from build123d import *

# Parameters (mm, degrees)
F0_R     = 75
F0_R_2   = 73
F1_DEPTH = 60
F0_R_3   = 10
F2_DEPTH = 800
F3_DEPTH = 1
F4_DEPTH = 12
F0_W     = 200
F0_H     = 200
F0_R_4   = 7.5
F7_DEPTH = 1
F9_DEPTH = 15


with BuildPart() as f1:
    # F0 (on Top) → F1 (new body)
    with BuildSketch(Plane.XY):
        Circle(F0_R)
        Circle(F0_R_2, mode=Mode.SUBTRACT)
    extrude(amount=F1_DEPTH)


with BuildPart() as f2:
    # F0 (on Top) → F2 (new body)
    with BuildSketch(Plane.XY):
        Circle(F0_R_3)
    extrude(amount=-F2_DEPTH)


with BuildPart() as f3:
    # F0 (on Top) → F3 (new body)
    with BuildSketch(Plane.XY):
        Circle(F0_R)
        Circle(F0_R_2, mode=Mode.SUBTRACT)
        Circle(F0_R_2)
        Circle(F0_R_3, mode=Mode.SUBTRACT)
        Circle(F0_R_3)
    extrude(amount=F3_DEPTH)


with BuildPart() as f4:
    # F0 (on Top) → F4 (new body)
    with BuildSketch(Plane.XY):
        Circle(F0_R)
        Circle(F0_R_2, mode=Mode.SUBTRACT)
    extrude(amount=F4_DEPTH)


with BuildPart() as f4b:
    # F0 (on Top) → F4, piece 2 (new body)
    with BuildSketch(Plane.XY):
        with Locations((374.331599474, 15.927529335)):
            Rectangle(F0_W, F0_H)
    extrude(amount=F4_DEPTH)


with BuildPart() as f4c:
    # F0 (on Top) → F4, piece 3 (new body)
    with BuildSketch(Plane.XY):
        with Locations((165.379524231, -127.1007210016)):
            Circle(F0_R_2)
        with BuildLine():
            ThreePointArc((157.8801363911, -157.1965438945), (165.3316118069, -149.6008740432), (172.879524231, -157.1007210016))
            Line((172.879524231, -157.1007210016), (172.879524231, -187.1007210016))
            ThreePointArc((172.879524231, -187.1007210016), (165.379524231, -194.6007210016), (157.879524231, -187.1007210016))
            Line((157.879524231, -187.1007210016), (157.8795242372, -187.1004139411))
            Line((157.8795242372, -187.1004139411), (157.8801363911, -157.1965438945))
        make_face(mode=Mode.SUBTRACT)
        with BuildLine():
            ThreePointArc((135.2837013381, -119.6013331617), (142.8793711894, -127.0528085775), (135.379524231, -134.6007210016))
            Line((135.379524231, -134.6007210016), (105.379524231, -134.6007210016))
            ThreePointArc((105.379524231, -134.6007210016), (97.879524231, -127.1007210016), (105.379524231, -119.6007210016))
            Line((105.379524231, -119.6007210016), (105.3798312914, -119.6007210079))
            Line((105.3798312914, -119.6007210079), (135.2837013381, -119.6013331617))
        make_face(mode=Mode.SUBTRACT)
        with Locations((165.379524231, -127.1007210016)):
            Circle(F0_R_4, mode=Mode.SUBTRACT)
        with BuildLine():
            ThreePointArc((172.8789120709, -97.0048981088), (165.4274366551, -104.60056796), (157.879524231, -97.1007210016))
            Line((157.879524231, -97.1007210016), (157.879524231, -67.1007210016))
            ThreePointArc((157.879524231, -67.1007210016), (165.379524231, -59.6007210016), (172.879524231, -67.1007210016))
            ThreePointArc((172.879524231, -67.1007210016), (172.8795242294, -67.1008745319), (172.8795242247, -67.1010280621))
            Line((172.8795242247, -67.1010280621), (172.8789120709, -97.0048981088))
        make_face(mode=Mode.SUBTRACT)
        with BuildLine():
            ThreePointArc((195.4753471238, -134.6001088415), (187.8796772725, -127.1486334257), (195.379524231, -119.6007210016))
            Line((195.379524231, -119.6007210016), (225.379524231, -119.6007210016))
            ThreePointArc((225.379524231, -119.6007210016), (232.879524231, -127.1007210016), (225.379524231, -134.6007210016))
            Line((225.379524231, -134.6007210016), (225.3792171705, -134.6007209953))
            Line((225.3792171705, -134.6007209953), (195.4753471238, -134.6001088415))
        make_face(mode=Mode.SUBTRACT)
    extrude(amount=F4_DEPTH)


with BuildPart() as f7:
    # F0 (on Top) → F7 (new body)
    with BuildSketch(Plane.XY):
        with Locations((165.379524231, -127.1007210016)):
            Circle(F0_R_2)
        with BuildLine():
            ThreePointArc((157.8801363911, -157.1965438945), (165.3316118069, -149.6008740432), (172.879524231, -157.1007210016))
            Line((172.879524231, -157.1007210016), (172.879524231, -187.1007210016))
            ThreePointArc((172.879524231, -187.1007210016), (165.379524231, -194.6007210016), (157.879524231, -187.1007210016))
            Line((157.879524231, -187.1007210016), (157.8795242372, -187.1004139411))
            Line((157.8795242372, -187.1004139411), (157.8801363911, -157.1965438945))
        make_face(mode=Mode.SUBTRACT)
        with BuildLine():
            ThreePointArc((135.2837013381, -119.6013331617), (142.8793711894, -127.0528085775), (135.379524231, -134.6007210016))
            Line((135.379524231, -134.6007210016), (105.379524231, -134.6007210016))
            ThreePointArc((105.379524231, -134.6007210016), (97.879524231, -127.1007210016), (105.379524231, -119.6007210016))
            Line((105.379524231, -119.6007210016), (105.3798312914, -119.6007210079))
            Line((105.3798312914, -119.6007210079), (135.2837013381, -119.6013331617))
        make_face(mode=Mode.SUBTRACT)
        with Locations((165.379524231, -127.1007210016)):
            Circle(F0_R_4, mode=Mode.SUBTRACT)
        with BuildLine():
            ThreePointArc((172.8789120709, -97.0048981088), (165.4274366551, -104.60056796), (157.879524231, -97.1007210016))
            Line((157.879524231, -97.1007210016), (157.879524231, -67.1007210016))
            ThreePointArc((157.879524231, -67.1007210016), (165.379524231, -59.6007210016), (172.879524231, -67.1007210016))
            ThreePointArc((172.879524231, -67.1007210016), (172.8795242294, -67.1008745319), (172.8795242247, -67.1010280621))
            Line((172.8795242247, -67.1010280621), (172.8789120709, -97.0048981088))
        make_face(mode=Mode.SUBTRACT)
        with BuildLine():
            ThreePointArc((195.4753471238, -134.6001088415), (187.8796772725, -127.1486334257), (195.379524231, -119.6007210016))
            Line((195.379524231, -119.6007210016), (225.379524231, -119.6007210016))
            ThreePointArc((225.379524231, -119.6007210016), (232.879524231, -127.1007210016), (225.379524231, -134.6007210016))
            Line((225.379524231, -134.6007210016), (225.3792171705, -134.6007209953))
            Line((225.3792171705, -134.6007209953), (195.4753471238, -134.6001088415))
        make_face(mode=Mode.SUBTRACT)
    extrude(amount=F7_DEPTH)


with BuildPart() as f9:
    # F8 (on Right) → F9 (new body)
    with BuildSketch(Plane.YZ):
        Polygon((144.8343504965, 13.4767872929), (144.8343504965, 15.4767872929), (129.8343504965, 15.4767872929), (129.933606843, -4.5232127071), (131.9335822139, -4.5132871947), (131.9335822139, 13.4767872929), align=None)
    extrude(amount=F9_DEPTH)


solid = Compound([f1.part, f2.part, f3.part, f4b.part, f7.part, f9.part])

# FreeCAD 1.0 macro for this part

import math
import FreeCAD as App
import Part
import Sketcher
from FreeCAD import Vector

doc = App.newDocument("Part")
body = doc.addObject("PartDesign::Body", "Body")

# Sketch on XY plane
sketch1 = doc.addObject("Sketcher::SketchObject", "Sketch")
body.addObject(sketch1)
sketch1.AttachmentSupport = (doc.XY_Plane, [""])
sketch1.MapMode = "FlatFace"
sketch1.addGeometry([
    Part.Circle(Vector(0, 0, 0), Vector(0, 0, 1), 75),
    Part.Circle(Vector(0, 0, 0), Vector(0, 0, 1), 73),
], False)
sketch1.addConstraint([
    Sketcher.Constraint("Coincident", 0, 3, -1, 1),
    Sketcher.Constraint("Coincident", 1, 3, -1, 1),
    Sketcher.Constraint("Diameter", 0, 150.0),
    Sketcher.Constraint("Diameter", 1, 146.0),
])
pad1 = doc.addObject("PartDesign::Pad", "Pad")
body.addObject(pad1)
pad1.Profile = sketch1
pad1.Length = 60
body2 = doc.addObject("PartDesign::Body", "Body001")

# Sketch on XY plane
sketch2 = doc.addObject("Sketcher::SketchObject", "Sketch001")
body2.addObject(sketch2)
sketch2.AttachmentSupport = (doc.getObject("XY_Plane001"), [""])
sketch2.MapMode = "FlatFace"
sketch2.addGeometry(Part.Circle(Vector(0, 0, 0), Vector(0, 0, 1), 10), False)
sketch2.addConstraint([
    Sketcher.Constraint("Coincident", 0, 3, -1, 1),
    Sketcher.Constraint("Diameter", 0, 20.0),
])
pad2 = doc.addObject("PartDesign::Pad", "Pad001")
body2.addObject(pad2)
pad2.Profile = sketch2
pad2.Length = 800
pad2.Reversed = True
body3 = doc.addObject("PartDesign::Body", "Body002")

# Sketch on XY plane
sketch3 = doc.addObject("Sketcher::SketchObject", "Sketch002")
body3.addObject(sketch3)
sketch3.AttachmentSupport = (doc.getObject("XY_Plane002"), [""])
sketch3.MapMode = "FlatFace"
sketch3.addGeometry(Part.Circle(Vector(0, 0, 0), Vector(0, 0, 1), 75), False)
sketch3.addConstraint([
    Sketcher.Constraint("Coincident", 0, 3, -1, 1),
    Sketcher.Constraint("Diameter", 0, 150.0),
])
pad3 = doc.addObject("PartDesign::Pad", "Pad002")
body3.addObject(pad3)
pad3.Profile = sketch3
pad3.Length = 1
body4 = doc.addObject("PartDesign::Body", "Body003")

# Sketch on XY plane
sketch4 = doc.addObject("Sketcher::SketchObject", "Sketch003")
body4.addObject(sketch4)
sketch4.AttachmentSupport = (doc.getObject("XY_Plane003"), [""])
sketch4.MapMode = "FlatFace"
sketch4.addGeometry([
    Part.Circle(Vector(0, 0, 0), Vector(0, 0, 1), 75),
    Part.Circle(Vector(0, 0, 0), Vector(0, 0, 1), 73),
], False)
sketch4.addConstraint([
    Sketcher.Constraint("Coincident", 0, 3, -1, 1),
    Sketcher.Constraint("Coincident", 1, 3, -1, 1),
    Sketcher.Constraint("Diameter", 0, 150.0),
    Sketcher.Constraint("Diameter", 1, 146.0),
])
pad4 = doc.addObject("PartDesign::Pad", "Pad003")
body4.addObject(pad4)
pad4.Profile = sketch4
pad4.Length = 12
body5 = doc.addObject("PartDesign::Body", "Body004")

# Sketch on XY plane
sketch5 = doc.addObject("Sketcher::SketchObject", "Sketch004")
body5.addObject(sketch5)
sketch5.AttachmentSupport = (doc.getObject("XY_Plane004"), [""])
sketch5.MapMode = "FlatFace"
sketch5.addGeometry([
    Part.LineSegment(Vector(274.331599, 115.927529, 0), Vector(274.331599, -84.072471, 0)),
    Part.LineSegment(Vector(274.331599, -84.072471, 0), Vector(474.331599, -84.072471, 0)),
    Part.LineSegment(Vector(474.331599, -84.072471, 0), Vector(474.331599, 115.927529, 0)),
    Part.LineSegment(Vector(474.331599, 115.927529, 0), Vector(274.331599, 115.927529, 0)),
], False)
sketch5.addConstraint([
    Sketcher.Constraint("Coincident", 0, 2, 1, 1),
    Sketcher.Constraint("Coincident", 1, 2, 2, 1),
    Sketcher.Constraint("Coincident", 2, 2, 3, 1),
    Sketcher.Constraint("Coincident", 3, 2, 0, 1),
    Sketcher.Constraint("Vertical", 0),
    Sketcher.Constraint("Horizontal", 1),
    Sketcher.Constraint("Vertical", 2),
    Sketcher.Constraint("Horizontal", 3),
    Sketcher.Constraint("Equal", 3, 0),
    Sketcher.Constraint("DistanceX", 1, 1, 1, 2, 200.0),
    Sketcher.Constraint("DistanceX", -1, 1, 0, 2, 274.331599),
    Sketcher.Constraint("DistanceY", 0, 2, -1, 1, 84.072471),
])
pad5 = doc.addObject("PartDesign::Pad", "Pad004")
body5.addObject(pad5)
pad5.Profile = sketch5
pad5.Length = 12
body6 = doc.addObject("PartDesign::Body", "Body005")

# Sketch on XY plane
sketch6 = doc.addObject("Sketcher::SketchObject", "Sketch005")
body6.addObject(sketch6)
sketch6.AttachmentSupport = (doc.getObject("XY_Plane005"), [""])
sketch6.MapMode = "FlatFace"
sketch6.addGeometry([
    Part.Circle(Vector(165.379524, -127.100721, 0), Vector(0, 0, 1), 73),  # 0
    Part.LineSegment(Vector(157.879524, -187.100414, 0), Vector(157.880136, -157.196544, 0)),  # 1
    Part.ArcOfCircle(Part.Circle(Vector(165.379524, -157.100721, 0), Vector(0, 0, 1), 7.5), math.radians(0), math.radians(180.732053)),  # 2
    Part.LineSegment(Vector(172.879524, -157.100721, 0), Vector(172.879524, -187.100721, 0)),  # 3
    Part.ArcOfCircle(Part.Circle(Vector(165.379524, -187.100721, 0), Vector(0, 0, 1), 7.5), math.radians(180), math.radians(360)),  # 4
    Part.LineSegment(Vector(157.879524, -187.100721, 0), Vector(157.879524, -187.100414, 0)),  # 5
    Part.LineSegment(Vector(225.379217, -134.600721, 0), Vector(195.475347, -134.600109, 0)),  # 6
    Part.ArcOfCircle(Part.Circle(Vector(195.379524, -127.100721, 0), Vector(0, 0, 1), 7.5), math.radians(90), math.radians(270.732053)),  # 7
    Part.LineSegment(Vector(195.379524, -119.600721, 0), Vector(225.379524, -119.600721, 0)),  # 8
    Part.ArcOfCircle(Part.Circle(Vector(225.379524, -127.100721, 0), Vector(0, 0, 1), 7.5), math.radians(-90), math.radians(90)),  # 9
    Part.LineSegment(Vector(225.379524, -134.600721, 0), Vector(225.379217, -134.600721, 0)),  # 10
    Part.LineSegment(Vector(105.379831, -119.600721, 0), Vector(135.283701, -119.601333, 0)),  # 11
    Part.ArcOfCircle(Part.Circle(Vector(135.379524, -127.100721, 0), Vector(0, 0, 1), 7.5), math.radians(-90), math.radians(90.732053)),  # 12
    Part.LineSegment(Vector(135.379524, -134.600721, 0), Vector(105.379524, -134.600721, 0)),  # 13
    Part.ArcOfCircle(Part.Circle(Vector(105.379524, -127.100721, 0), Vector(0, 0, 1), 7.5), math.radians(90), math.radians(270)),  # 14
    Part.LineSegment(Vector(105.379524, -119.600721, 0), Vector(105.379831, -119.600721, 0)),  # 15
    Part.Circle(Vector(165.379524, -127.100721, 0), Vector(0, 0, 1), 7.5),  # 16
    Part.LineSegment(Vector(172.879524, -67.101028, 0), Vector(172.878912, -97.004898, 0)),  # 17
    Part.ArcOfCircle(Part.Circle(Vector(165.379524, -97.100721, 0), Vector(0, 0, 1), 7.5), math.radians(180), math.radians(360.732053)),  # 18
    Part.LineSegment(Vector(157.879524, -97.100721, 0), Vector(157.879524, -67.100721, 0)),  # 19
    Part.ArcOfCircle(Part.Circle(Vector(165.379524, -67.100721, 0), Vector(0, 0, 1), 7.5), math.radians(0), math.radians(180)),  # 20
    Part.ArcOfCircle(Part.Circle(Vector(165.275835, -67.100719, 0), Vector(0, 0, 1), 7.603689), math.radians(-0.002332), math.radians(-0.000019)),  # 21
], False)
sketch6.addConstraint([
    Sketcher.Constraint("Coincident", 1, 2, 2, 2),
    Sketcher.Constraint("Tangent", 2, 1, 3, 1),
    Sketcher.Constraint("Tangent", 3, 2, 4, 2),
    Sketcher.Constraint("Coincident", 4, 1, 5, 1),
    Sketcher.Constraint("Coincident", 5, 2, 1, 1),
    Sketcher.Constraint("Coincident", 6, 2, 7, 2),
    Sketcher.Constraint("Tangent", 7, 1, 8, 1),
    Sketcher.Constraint("Tangent", 8, 2, 9, 2),
    Sketcher.Constraint("Coincident", 9, 1, 10, 1),
    Sketcher.Constraint("Coincident", 10, 2, 6, 1),
    Sketcher.Constraint("Coincident", 11, 2, 12, 2),
    Sketcher.Constraint("Tangent", 12, 1, 13, 1),
    Sketcher.Constraint("Tangent", 13, 2, 14, 2),
    Sketcher.Constraint("Coincident", 14, 1, 15, 1),
    Sketcher.Constraint("Coincident", 15, 2, 11, 1),
    Sketcher.Constraint("Coincident", 17, 2, 18, 2),
    Sketcher.Constraint("Tangent", 18, 1, 19, 1),
    Sketcher.Constraint("Tangent", 19, 2, 20, 2),
    Sketcher.Constraint("Tangent", 20, 1, 21, 2),
    Sketcher.Constraint("Coincident", 21, 1, 17, 1),
    Sketcher.Constraint("Vertical", 3),
    Sketcher.Constraint("Vertical", 5),
    Sketcher.Constraint("Horizontal", 8),
    Sketcher.Constraint("Horizontal", 10),
    Sketcher.Constraint("Horizontal", 13),
    Sketcher.Constraint("Horizontal", 15),
    Sketcher.Constraint("Vertical", 19),
    Sketcher.Constraint("Coincident", 16, 3, 0, 3),
    Sketcher.Constraint("Equal", 2, 4),
    Sketcher.Constraint("Equal", 4, 7),
    Sketcher.Constraint("Equal", 7, 9),
    Sketcher.Constraint("Equal", 9, 12),
    Sketcher.Constraint("Equal", 12, 14),
    Sketcher.Constraint("Equal", 14, 16),
    Sketcher.Constraint("Equal", 16, 18),
    Sketcher.Constraint("Equal", 18, 20),
    Sketcher.Constraint("Perpendicular", 1, 6),
    Sketcher.Constraint("Parallel", 6, 11),
    Sketcher.Constraint("Perpendicular", 11, 17),
    Sketcher.Constraint("Horizontal", 0, 3, 7, 3),
    Sketcher.Constraint("Horizontal", 9, 3, 12, 3),
    Sketcher.Constraint("Horizontal", 3, 2, 4, 1),
    Sketcher.Constraint("Horizontal", 19, 2, 20, 1),
    Sketcher.Constraint("Vertical", 0, 3, 2, 3),
    Sketcher.Constraint("Vertical", 16, 3, 18, 3),
    Sketcher.Constraint("Vertical", 8, 2, 9, 1),
    Sketcher.Constraint("Vertical", 13, 2, 14, 1),
    Sketcher.Constraint("Equal", 8, 13),
    Sketcher.Constraint("Equal", 10, 15),
    Sketcher.Constraint("Equal", 13, 3),
    Sketcher.Constraint("Equal", 15, 5),
    Sketcher.Constraint("Equal", 3, 19),
    Sketcher.Constraint("Equal", 11, 17),
    Sketcher.Constraint("Diameter", 0, 146.0),
    Sketcher.Constraint("Diameter", 16, 15.0),
    Sketcher.Constraint("DistanceX", 8, 1, 8, 2, 30.0),
    Sketcher.Constraint("DistanceY", 2, 3, 0, 3, 30.0),
    Sketcher.Constraint("DistanceX", 0, 3, 7, 3, 30.0),
    Sketcher.Constraint("DistanceX", 12, 3, 0, 3, 30.0),
    Sketcher.Constraint("DistanceY", 0, 3, 18, 3, 30.0),
    Sketcher.Constraint("Radius", 21, 7.603689),
    Sketcher.Constraint("DistanceX", -1, 1, 11, 2, 135.283701),
    Sketcher.Constraint("DistanceY", 17, 2, -1, 1, 97.004898),
    Sketcher.Constraint("Distance", 1, 29.90387),
    Sketcher.Constraint("DistanceX", 10, 2, 10, 1, 0.000307),
])
pad6 = doc.addObject("PartDesign::Pad", "Pad005")
body6.addObject(pad6)
pad6.Profile = sketch6
pad6.Length = 12
body7 = doc.addObject("PartDesign::Body", "Body006")

# Sketch on XY plane
sketch7 = doc.addObject("Sketcher::SketchObject", "Sketch006")
body7.addObject(sketch7)
sketch7.AttachmentSupport = (doc.getObject("XY_Plane006"), [""])
sketch7.MapMode = "FlatFace"
sketch7.addGeometry([
    Part.Circle(Vector(165.379524, -127.100721, 0), Vector(0, 0, 1), 73),  # 0
    Part.LineSegment(Vector(157.879524, -187.100414, 0), Vector(157.880136, -157.196544, 0)),  # 1
    Part.ArcOfCircle(Part.Circle(Vector(165.379524, -157.100721, 0), Vector(0, 0, 1), 7.5), math.radians(0), math.radians(180.732053)),  # 2
    Part.LineSegment(Vector(172.879524, -157.100721, 0), Vector(172.879524, -187.100721, 0)),  # 3
    Part.ArcOfCircle(Part.Circle(Vector(165.379524, -187.100721, 0), Vector(0, 0, 1), 7.5), math.radians(180), math.radians(360)),  # 4
    Part.LineSegment(Vector(157.879524, -187.100721, 0), Vector(157.879524, -187.100414, 0)),  # 5
    Part.LineSegment(Vector(225.379217, -134.600721, 0), Vector(195.475347, -134.600109, 0)),  # 6
    Part.ArcOfCircle(Part.Circle(Vector(195.379524, -127.100721, 0), Vector(0, 0, 1), 7.5), math.radians(90), math.radians(270.732053)),  # 7
    Part.LineSegment(Vector(195.379524, -119.600721, 0), Vector(225.379524, -119.600721, 0)),  # 8
    Part.ArcOfCircle(Part.Circle(Vector(225.379524, -127.100721, 0), Vector(0, 0, 1), 7.5), math.radians(-90), math.radians(90)),  # 9
    Part.LineSegment(Vector(225.379524, -134.600721, 0), Vector(225.379217, -134.600721, 0)),  # 10
    Part.LineSegment(Vector(105.379831, -119.600721, 0), Vector(135.283701, -119.601333, 0)),  # 11
    Part.ArcOfCircle(Part.Circle(Vector(135.379524, -127.100721, 0), Vector(0, 0, 1), 7.5), math.radians(-90), math.radians(90.732053)),  # 12
    Part.LineSegment(Vector(135.379524, -134.600721, 0), Vector(105.379524, -134.600721, 0)),  # 13
    Part.ArcOfCircle(Part.Circle(Vector(105.379524, -127.100721, 0), Vector(0, 0, 1), 7.5), math.radians(90), math.radians(270)),  # 14
    Part.LineSegment(Vector(105.379524, -119.600721, 0), Vector(105.379831, -119.600721, 0)),  # 15
    Part.Circle(Vector(165.379524, -127.100721, 0), Vector(0, 0, 1), 7.5),  # 16
    Part.LineSegment(Vector(172.879524, -67.101028, 0), Vector(172.878912, -97.004898, 0)),  # 17
    Part.ArcOfCircle(Part.Circle(Vector(165.379524, -97.100721, 0), Vector(0, 0, 1), 7.5), math.radians(180), math.radians(360.732053)),  # 18
    Part.LineSegment(Vector(157.879524, -97.100721, 0), Vector(157.879524, -67.100721, 0)),  # 19
    Part.ArcOfCircle(Part.Circle(Vector(165.379524, -67.100721, 0), Vector(0, 0, 1), 7.5), math.radians(0), math.radians(180)),  # 20
    Part.ArcOfCircle(Part.Circle(Vector(165.275835, -67.100719, 0), Vector(0, 0, 1), 7.603689), math.radians(-0.002332), math.radians(-0.000019)),  # 21
], False)
sketch7.addConstraint([
    Sketcher.Constraint("Coincident", 1, 2, 2, 2),
    Sketcher.Constraint("Tangent", 2, 1, 3, 1),
    Sketcher.Constraint("Tangent", 3, 2, 4, 2),
    Sketcher.Constraint("Coincident", 4, 1, 5, 1),
    Sketcher.Constraint("Coincident", 5, 2, 1, 1),
    Sketcher.Constraint("Coincident", 6, 2, 7, 2),
    Sketcher.Constraint("Tangent", 7, 1, 8, 1),
    Sketcher.Constraint("Tangent", 8, 2, 9, 2),
    Sketcher.Constraint("Coincident", 9, 1, 10, 1),
    Sketcher.Constraint("Coincident", 10, 2, 6, 1),
    Sketcher.Constraint("Coincident", 11, 2, 12, 2),
    Sketcher.Constraint("Tangent", 12, 1, 13, 1),
    Sketcher.Constraint("Tangent", 13, 2, 14, 2),
    Sketcher.Constraint("Coincident", 14, 1, 15, 1),
    Sketcher.Constraint("Coincident", 15, 2, 11, 1),
    Sketcher.Constraint("Coincident", 17, 2, 18, 2),
    Sketcher.Constraint("Tangent", 18, 1, 19, 1),
    Sketcher.Constraint("Tangent", 19, 2, 20, 2),
    Sketcher.Constraint("Tangent", 20, 1, 21, 2),
    Sketcher.Constraint("Coincident", 21, 1, 17, 1),
    Sketcher.Constraint("Vertical", 3),
    Sketcher.Constraint("Vertical", 5),
    Sketcher.Constraint("Horizontal", 8),
    Sketcher.Constraint("Horizontal", 10),
    Sketcher.Constraint("Horizontal", 13),
    Sketcher.Constraint("Horizontal", 15),
    Sketcher.Constraint("Vertical", 19),
    Sketcher.Constraint("Coincident", 16, 3, 0, 3),
    Sketcher.Constraint("Equal", 2, 4),
    Sketcher.Constraint("Equal", 4, 7),
    Sketcher.Constraint("Equal", 7, 9),
    Sketcher.Constraint("Equal", 9, 12),
    Sketcher.Constraint("Equal", 12, 14),
    Sketcher.Constraint("Equal", 14, 16),
    Sketcher.Constraint("Equal", 16, 18),
    Sketcher.Constraint("Equal", 18, 20),
    Sketcher.Constraint("Perpendicular", 1, 6),
    Sketcher.Constraint("Parallel", 6, 11),
    Sketcher.Constraint("Perpendicular", 11, 17),
    Sketcher.Constraint("Horizontal", 0, 3, 7, 3),
    Sketcher.Constraint("Horizontal", 9, 3, 12, 3),
    Sketcher.Constraint("Horizontal", 3, 2, 4, 1),
    Sketcher.Constraint("Horizontal", 19, 2, 20, 1),
    Sketcher.Constraint("Vertical", 0, 3, 2, 3),
    Sketcher.Constraint("Vertical", 16, 3, 18, 3),
    Sketcher.Constraint("Vertical", 8, 2, 9, 1),
    Sketcher.Constraint("Vertical", 13, 2, 14, 1),
    Sketcher.Constraint("Equal", 8, 13),
    Sketcher.Constraint("Equal", 10, 15),
    Sketcher.Constraint("Equal", 13, 3),
    Sketcher.Constraint("Equal", 15, 5),
    Sketcher.Constraint("Equal", 3, 19),
    Sketcher.Constraint("Equal", 11, 17),
    Sketcher.Constraint("Diameter", 0, 146.0),
    Sketcher.Constraint("Diameter", 16, 15.0),
    Sketcher.Constraint("DistanceX", 8, 1, 8, 2, 30.0),
    Sketcher.Constraint("DistanceY", 2, 3, 0, 3, 30.0),
    Sketcher.Constraint("DistanceX", 0, 3, 7, 3, 30.0),
    Sketcher.Constraint("DistanceX", 12, 3, 0, 3, 30.0),
    Sketcher.Constraint("DistanceY", 0, 3, 18, 3, 30.0),
    Sketcher.Constraint("Radius", 21, 7.603689),
    Sketcher.Constraint("DistanceX", -1, 1, 11, 2, 135.283701),
    Sketcher.Constraint("DistanceY", 17, 2, -1, 1, 97.004898),
    Sketcher.Constraint("Distance", 1, 29.90387),
    Sketcher.Constraint("DistanceX", 10, 2, 10, 1, 0.000307),
])
pad7 = doc.addObject("PartDesign::Pad", "Pad006")
body7.addObject(pad7)
pad7.Profile = sketch7
pad7.Length = 1
body8 = doc.addObject("PartDesign::Body", "Body007")

# Sketch on YZ plane
sketch8 = doc.addObject("Sketcher::SketchObject", "Sketch007")
body8.addObject(sketch8)
sketch8.AttachmentSupport = (doc.getObject("YZ_Plane007"), [""])
sketch8.MapMode = "FlatFace"
sketch8.addGeometry([
    Part.LineSegment(Vector(144.83435, 13.476787, 0), Vector(144.83435, 15.476787, 0)),  # 0
    Part.LineSegment(Vector(144.83435, 15.476787, 0), Vector(129.83435, 15.476787, 0)),  # 1
    Part.LineSegment(Vector(129.83435, 15.476787, 0), Vector(129.933607, -4.523213, 0)),  # 2
    Part.LineSegment(Vector(129.933607, -4.523213, 0), Vector(131.933582, -4.513287, 0)),  # 3
    Part.LineSegment(Vector(131.933582, -4.513287, 0), Vector(131.933582, 13.476787, 0)),  # 4
    Part.LineSegment(Vector(131.933582, 13.476787, 0), Vector(144.83435, 13.476787, 0)),  # 5
], False)
sketch8.addConstraint([
    Sketcher.Constraint("Coincident", 0, 2, 1, 1),
    Sketcher.Constraint("Coincident", 1, 2, 2, 1),
    Sketcher.Constraint("Coincident", 2, 2, 3, 1),
    Sketcher.Constraint("Coincident", 3, 2, 4, 1),
    Sketcher.Constraint("Coincident", 4, 2, 5, 1),
    Sketcher.Constraint("Coincident", 5, 2, 0, 1),
    Sketcher.Constraint("Vertical", 0),
    Sketcher.Constraint("Horizontal", 1),
    Sketcher.Constraint("Vertical", 4),
    Sketcher.Constraint("Horizontal", 5),
    Sketcher.Constraint("Perpendicular", 2, 3),
    Sketcher.Constraint("DistanceX", 1, 2, 1, 1, 15.0),
    Sketcher.Constraint("DistanceY", 0, 1, 0, 2, 2.0),
    Sketcher.Constraint("Distance", 3, 2.0),
    Sketcher.Constraint("DistanceY", 2, 2, 1, 2, 20.0),
    Sketcher.Constraint("DistanceX", 5, 1, 5, 2, 12.900768),
    Sketcher.Constraint("DistanceX", -1, 1, 0, 2, 144.83435),
    Sketcher.Constraint("DistanceY", -1, 1, 0, 2, 15.476787),
])
pad8 = doc.addObject("PartDesign::Pad", "Pad007")
body8.addObject(pad8)
pad8.Profile = sketch8
pad8.Length = 15
body4.Visibility = False
body6.Visibility = False

doc.recompute()
